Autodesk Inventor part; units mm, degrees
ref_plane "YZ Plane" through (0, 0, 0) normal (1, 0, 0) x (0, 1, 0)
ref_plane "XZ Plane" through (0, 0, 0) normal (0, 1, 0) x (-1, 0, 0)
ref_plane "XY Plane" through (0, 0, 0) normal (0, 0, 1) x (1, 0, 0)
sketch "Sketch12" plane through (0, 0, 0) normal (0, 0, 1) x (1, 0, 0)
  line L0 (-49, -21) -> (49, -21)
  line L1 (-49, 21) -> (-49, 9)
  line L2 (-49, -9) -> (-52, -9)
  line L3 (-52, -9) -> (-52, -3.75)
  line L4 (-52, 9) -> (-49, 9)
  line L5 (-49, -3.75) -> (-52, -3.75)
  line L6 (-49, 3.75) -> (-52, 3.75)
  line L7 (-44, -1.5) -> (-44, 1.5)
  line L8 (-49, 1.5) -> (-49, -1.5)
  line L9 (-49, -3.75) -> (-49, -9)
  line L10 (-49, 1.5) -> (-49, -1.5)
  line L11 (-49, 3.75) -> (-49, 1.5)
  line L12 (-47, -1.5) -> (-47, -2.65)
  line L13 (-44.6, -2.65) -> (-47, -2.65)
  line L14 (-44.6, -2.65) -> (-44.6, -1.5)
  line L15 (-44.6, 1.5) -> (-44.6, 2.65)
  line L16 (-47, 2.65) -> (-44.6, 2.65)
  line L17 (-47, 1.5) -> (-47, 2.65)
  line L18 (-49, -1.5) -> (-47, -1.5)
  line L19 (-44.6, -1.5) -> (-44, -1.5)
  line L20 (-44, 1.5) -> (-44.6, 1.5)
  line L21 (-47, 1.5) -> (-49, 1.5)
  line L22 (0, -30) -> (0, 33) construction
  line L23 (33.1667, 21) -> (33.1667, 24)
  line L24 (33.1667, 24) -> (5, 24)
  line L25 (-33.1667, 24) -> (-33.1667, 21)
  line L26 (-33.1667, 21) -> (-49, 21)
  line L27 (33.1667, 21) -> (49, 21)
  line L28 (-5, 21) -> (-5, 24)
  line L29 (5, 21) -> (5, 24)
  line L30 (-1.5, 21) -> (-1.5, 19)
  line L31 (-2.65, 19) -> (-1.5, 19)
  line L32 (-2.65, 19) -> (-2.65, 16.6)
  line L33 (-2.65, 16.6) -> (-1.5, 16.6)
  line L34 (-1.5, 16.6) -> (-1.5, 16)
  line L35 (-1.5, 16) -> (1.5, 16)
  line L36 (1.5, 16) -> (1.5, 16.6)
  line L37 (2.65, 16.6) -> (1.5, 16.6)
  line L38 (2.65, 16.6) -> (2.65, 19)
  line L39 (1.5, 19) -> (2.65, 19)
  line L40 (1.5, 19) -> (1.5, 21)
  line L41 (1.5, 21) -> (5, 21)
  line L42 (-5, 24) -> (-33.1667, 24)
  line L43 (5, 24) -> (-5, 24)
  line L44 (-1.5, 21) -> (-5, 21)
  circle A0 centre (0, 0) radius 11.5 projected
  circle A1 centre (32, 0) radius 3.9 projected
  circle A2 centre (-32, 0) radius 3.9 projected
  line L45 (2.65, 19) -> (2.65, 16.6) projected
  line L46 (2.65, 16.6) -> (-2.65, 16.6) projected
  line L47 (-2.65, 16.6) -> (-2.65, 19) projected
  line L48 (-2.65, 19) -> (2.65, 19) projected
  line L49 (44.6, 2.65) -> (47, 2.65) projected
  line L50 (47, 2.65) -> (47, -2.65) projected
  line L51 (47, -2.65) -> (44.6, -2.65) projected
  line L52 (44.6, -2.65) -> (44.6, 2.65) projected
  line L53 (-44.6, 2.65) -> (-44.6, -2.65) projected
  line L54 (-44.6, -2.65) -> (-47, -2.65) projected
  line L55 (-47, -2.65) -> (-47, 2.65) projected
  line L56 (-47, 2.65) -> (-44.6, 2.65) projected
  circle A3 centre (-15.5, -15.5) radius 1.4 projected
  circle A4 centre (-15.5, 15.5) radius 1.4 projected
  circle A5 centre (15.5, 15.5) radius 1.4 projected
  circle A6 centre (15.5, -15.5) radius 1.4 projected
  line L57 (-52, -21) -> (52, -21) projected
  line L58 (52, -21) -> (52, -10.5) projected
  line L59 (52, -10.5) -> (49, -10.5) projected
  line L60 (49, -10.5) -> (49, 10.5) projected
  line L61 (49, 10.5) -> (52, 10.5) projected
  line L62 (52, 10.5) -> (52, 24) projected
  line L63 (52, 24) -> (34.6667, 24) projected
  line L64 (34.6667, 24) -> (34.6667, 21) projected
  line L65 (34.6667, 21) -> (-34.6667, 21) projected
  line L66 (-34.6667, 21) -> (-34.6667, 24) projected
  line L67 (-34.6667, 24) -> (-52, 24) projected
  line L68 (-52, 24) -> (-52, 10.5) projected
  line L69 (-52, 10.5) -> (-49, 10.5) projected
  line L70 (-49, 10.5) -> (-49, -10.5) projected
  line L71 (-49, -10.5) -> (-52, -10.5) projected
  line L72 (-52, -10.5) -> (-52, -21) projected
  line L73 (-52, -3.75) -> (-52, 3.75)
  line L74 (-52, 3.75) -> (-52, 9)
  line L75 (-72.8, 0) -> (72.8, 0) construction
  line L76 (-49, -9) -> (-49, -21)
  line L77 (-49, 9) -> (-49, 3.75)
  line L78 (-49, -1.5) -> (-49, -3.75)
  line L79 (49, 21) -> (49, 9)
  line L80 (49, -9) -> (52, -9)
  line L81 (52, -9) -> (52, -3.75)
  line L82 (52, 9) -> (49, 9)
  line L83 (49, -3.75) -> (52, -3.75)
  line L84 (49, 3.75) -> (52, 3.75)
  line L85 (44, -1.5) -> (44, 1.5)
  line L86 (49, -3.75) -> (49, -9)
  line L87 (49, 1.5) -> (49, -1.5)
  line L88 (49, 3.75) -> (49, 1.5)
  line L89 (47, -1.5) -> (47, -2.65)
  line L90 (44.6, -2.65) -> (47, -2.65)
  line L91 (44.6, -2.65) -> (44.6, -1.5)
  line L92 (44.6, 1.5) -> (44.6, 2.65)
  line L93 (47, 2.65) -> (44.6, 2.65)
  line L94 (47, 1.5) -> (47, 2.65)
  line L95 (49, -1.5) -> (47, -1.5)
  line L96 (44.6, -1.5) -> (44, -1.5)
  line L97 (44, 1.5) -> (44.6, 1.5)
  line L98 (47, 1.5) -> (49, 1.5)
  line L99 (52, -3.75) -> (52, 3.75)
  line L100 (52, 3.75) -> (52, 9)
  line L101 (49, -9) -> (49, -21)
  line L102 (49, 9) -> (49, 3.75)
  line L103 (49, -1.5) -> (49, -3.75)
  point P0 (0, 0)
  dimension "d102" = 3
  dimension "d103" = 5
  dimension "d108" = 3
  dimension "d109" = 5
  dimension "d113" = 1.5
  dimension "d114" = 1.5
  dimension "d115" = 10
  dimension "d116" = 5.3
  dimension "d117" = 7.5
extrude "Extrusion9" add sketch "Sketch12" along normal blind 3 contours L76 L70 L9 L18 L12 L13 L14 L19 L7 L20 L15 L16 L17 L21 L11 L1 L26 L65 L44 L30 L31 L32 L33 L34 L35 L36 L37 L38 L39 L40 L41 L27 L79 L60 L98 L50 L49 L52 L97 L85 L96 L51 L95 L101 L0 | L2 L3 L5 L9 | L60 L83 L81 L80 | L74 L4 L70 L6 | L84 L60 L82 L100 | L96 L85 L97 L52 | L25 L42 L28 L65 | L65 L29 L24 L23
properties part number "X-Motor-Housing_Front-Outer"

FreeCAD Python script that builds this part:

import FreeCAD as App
import Part
import Sketcher
from FreeCAD import Vector
Q = App.Units.Quantity

doc = App.newDocument("Part")
body = doc.addObject("PartDesign::Body", "Body")

sketch1 = body.newObject("Sketcher::SketchObject", "Sketch")
sketch1.AttachmentSupport = (doc.getObject("XY_Plane"), [""])
sketch1.MapMode = "FlatFace"
sketch1.addGeometry(Part.LineSegment(Vector(-49, -21, 0), Vector(49, -21, 0)), False)
sketch1.addGeometry(Part.LineSegment(Vector(49, -21, 0), Vector(49, -9, 0)), False)
sketch1.addGeometry(Part.LineSegment(Vector(49, -9, 0), Vector(52, -9, 0)), False)
sketch1.addGeometry(Part.LineSegment(Vector(52, -9, 0), Vector(52, -3.75, 0)), False)
sketch1.addGeometry(Part.LineSegment(Vector(52, -3.75, 0), Vector(49, -3.75, 0)), False)
sketch1.addGeometry(Part.LineSegment(Vector(49, -3.75, 0), Vector(49, -1.5, 0)), False)
sketch1.addGeometry(Part.LineSegment(Vector(49, -1.5, 0), Vector(47, -1.5, 0)), False)
sketch1.addGeometry(Part.LineSegment(Vector(47, -1.5, 0), Vector(47, -2.65, 0)), False)
sketch1.addGeometry(Part.LineSegment(Vector(47, -2.65, 0), Vector(44.6, -2.65, 0)), False)
sketch1.addGeometry(Part.LineSegment(Vector(44.6, -2.65, 0), Vector(44.6, 2.65, 0)), False)
sketch1.addGeometry(Part.LineSegment(Vector(44.6, 2.65, 0), Vector(47, 2.65, 0)), False)
sketch1.addGeometry(Part.LineSegment(Vector(47, 2.65, 0), Vector(47, 1.5, 0)), False)
sketch1.addGeometry(Part.LineSegment(Vector(47, 1.5, 0), Vector(49, 1.5, 0)), False)
sketch1.addGeometry(Part.LineSegment(Vector(49, 1.5, 0), Vector(49, 3.75, 0)), False)
sketch1.addGeometry(Part.LineSegment(Vector(49, 3.75, 0), Vector(52, 3.75, 0)), False)
sketch1.addGeometry(Part.LineSegment(Vector(52, 3.75, 0), Vector(52, 9, 0)), False)
sketch1.addGeometry(Part.LineSegment(Vector(52, 9, 0), Vector(49, 9, 0)), False)
sketch1.addGeometry(Part.LineSegment(Vector(49, 9, 0), Vector(49, 21, 0)), False)
sketch1.addGeometry(Part.LineSegment(Vector(49, 21, 0), Vector(33.1667, 21, 0)), False)
sketch1.addGeometry(Part.LineSegment(Vector(33.1667, 21, 0), Vector(33.1667, 24, 0)), False)
sketch1.addGeometry(Part.LineSegment(Vector(33.1667, 24, 0), Vector(5, 24, 0)), False)
sketch1.addGeometry(Part.LineSegment(Vector(5, 24, 0), Vector(5, 21, 0)), False)
sketch1.addGeometry(Part.LineSegment(Vector(5, 21, 0), Vector(1.5, 21, 0)), False)
sketch1.addGeometry(Part.LineSegment(Vector(1.5, 21, 0), Vector(1.5, 19, 0)), False)
sketch1.addGeometry(Part.LineSegment(Vector(1.5, 19, 0), Vector(2.65, 19, 0)), False)
sketch1.addGeometry(Part.LineSegment(Vector(2.65, 19, 0), Vector(2.65, 16.6, 0)), False)
sketch1.addGeometry(Part.LineSegment(Vector(2.65, 16.6, 0), Vector(1.5, 16.6, 0)), False)
sketch1.addGeometry(Part.LineSegment(Vector(1.5, 16.6, 0), Vector(1.5, 16, 0)), False)
sketch1.addGeometry(Part.LineSegment(Vector(1.5, 16, 0), Vector(-1.5, 16, 0)), False)
sketch1.addGeometry(Part.LineSegment(Vector(-1.5, 16, 0), Vector(-1.5, 16.6, 0)), False)
sketch1.addGeometry(Part.LineSegment(Vector(-1.5, 16.6, 0), Vector(-2.65, 16.6, 0)), False)
sketch1.addGeometry(Part.LineSegment(Vector(-2.65, 16.6, 0), Vector(-2.65, 19, 0)), False)
sketch1.addGeometry(Part.LineSegment(Vector(-2.65, 19, 0), Vector(-1.5, 19, 0)), False)
sketch1.addGeometry(Part.LineSegment(Vector(-1.5, 19, 0), Vector(-1.5, 21, 0)), False)
sketch1.addGeometry(Part.LineSegment(Vector(-1.5, 21, 0), Vector(-5, 21, 0)), False)
sketch1.addGeometry(Part.LineSegment(Vector(-5, 21, 0), Vector(-5, 24, 0)), False)
sketch1.addGeometry(Part.LineSegment(Vector(-5, 24, 0), Vector(-33.1667, 24, 0)), False)
sketch1.addGeometry(Part.LineSegment(Vector(-33.1667, 24, 0), Vector(-33.1667, 21, 0)), False)
sketch1.addGeometry(Part.LineSegment(Vector(-33.1667, 21, 0), Vector(-49, 21, 0)), False)
sketch1.addGeometry(Part.LineSegment(Vector(-49, 21, 0), Vector(-49, 9, 0)), False)
sketch1.addGeometry(Part.LineSegment(Vector(-49, 9, 0), Vector(-52, 9, 0)), False)
sketch1.addGeometry(Part.LineSegment(Vector(-52, 9, 0), Vector(-52, 3.75, 0)), False)
sketch1.addGeometry(Part.LineSegment(Vector(-52, 3.75, 0), Vector(-49, 3.75, 0)), False)
sketch1.addGeometry(Part.LineSegment(Vector(-49, 3.75, 0), Vector(-49, 1.5, 0)), False)
sketch1.addGeometry(Part.LineSegment(Vector(-49, 1.5, 0), Vector(-47, 1.5, 0)), False)
sketch1.addGeometry(Part.LineSegment(Vector(-47, 1.5, 0), Vector(-47, 2.65, 0)), False)
sketch1.addGeometry(Part.LineSegment(Vector(-47, 2.65, 0), Vector(-44.6, 2.65, 0)), False)
sketch1.addGeometry(Part.LineSegment(Vector(-44.6, 2.65, 0), Vector(-44.6, 1.5, 0)), False)
sketch1.addGeometry(Part.LineSegment(Vector(-44.6, 1.5, 0), Vector(-44, 1.5, 0)), False)
sketch1.addGeometry(Part.LineSegment(Vector(-44, 1.5, 0), Vector(-44, -1.5, 0)), False)
sketch1.addGeometry(Part.LineSegment(Vector(-44, -1.5, 0), Vector(-44.6, -1.5, 0)), False)
sketch1.addGeometry(Part.LineSegment(Vector(-44.6, -1.5, 0), Vector(-44.6, -2.65, 0)), False)
sketch1.addGeometry(Part.LineSegment(Vector(-44.6, -2.65, 0), Vector(-47, -2.65, 0)), False)
sketch1.addGeometry(Part.LineSegment(Vector(-47, -2.65, 0), Vector(-47, -1.5, 0)), False)
sketch1.addGeometry(Part.LineSegment(Vector(-47, -1.5, 0), Vector(-49, -1.5, 0)), False)
sketch1.addGeometry(Part.LineSegment(Vector(-49, -1.5, 0), Vector(-49, -3.75, 0)), False)
sketch1.addGeometry(Part.LineSegment(Vector(-49, -3.75, 0), Vector(-52, -3.75, 0)), False)
sketch1.addGeometry(Part.LineSegment(Vector(-52, -3.75, 0), Vector(-52, -9, 0)), False)
sketch1.addGeometry(Part.LineSegment(Vector(-52, -9, 0), Vector(-49, -9, 0)), False)
sketch1.addGeometry(Part.LineSegment(Vector(-49, -9, 0), Vector(-49, -21, 0)), False)
sketch1.addGeometry(Part.Circle(Vector(-15.5, -15.5, 0), Vector(0, 0, 1), 1.4), False)
sketch1.addGeometry(Part.Circle(Vector(-32, 0, 0), Vector(0, 0, 1), 3.9), False)
sketch1.addGeometry(Part.Circle(Vector(15.5, -15.5, 0), Vector(0, 0, 1), 1.4), False)
sketch1.addGeometry(Part.Circle(Vector(0, 0, 0), Vector(0, 0, 1), 11.5), False)
sketch1.addGeometry(Part.Circle(Vector(32, 0, 0), Vector(0, 0, 1), 3.9), False)
sketch1.addGeometry(Part.Circle(Vector(-15.5, 15.5, 0), Vector(0, 0, 1), 1.4), False)
sketch1.addGeometry(Part.Circle(Vector(15.5, 15.5, 0), Vector(0, 0, 1), 1.4), False)
sketch1.addConstraint(Sketcher.Constraint("Coincident", 0, 2, 1, 1))
sketch1.addConstraint(Sketcher.Constraint("Coincident", 1, 2, 2, 1))
sketch1.addConstraint(Sketcher.Constraint("Coincident", 2, 2, 3, 1))
sketch1.addConstraint(Sketcher.Constraint("Coincident", 3, 2, 4, 1))
sketch1.addConstraint(Sketcher.Constraint("Coincident", 4, 2, 5, 1))
sketch1.addConstraint(Sketcher.Constraint("Coincident", 5, 2, 6, 1))
sketch1.addConstraint(Sketcher.Constraint("Coincident", 6, 2, 7, 1))
sketch1.addConstraint(Sketcher.Constraint("Coincident", 7, 2, 8, 1))
sketch1.addConstraint(Sketcher.Constraint("Coincident", 8, 2, 9, 1))
sketch1.addConstraint(Sketcher.Constraint("Coincident", 9, 2, 10, 1))
sketch1.addConstraint(Sketcher.Constraint("Coincident", 10, 2, 11, 1))
sketch1.addConstraint(Sketcher.Constraint("Coincident", 11, 2, 12, 1))
sketch1.addConstraint(Sketcher.Constraint("Coincident", 12, 2, 13, 1))
sketch1.addConstraint(Sketcher.Constraint("Coincident", 13, 2, 14, 1))
sketch1.addConstraint(Sketcher.Constraint("Coincident", 14, 2, 15, 1))
sketch1.addConstraint(Sketcher.Constraint("Coincident", 15, 2, 16, 1))
sketch1.addConstraint(Sketcher.Constraint("Coincident", 16, 2, 17, 1))
sketch1.addConstraint(Sketcher.Constraint("Coincident", 17, 2, 18, 1))
sketch1.addConstraint(Sketcher.Constraint("Coincident", 18, 2, 19, 1))
sketch1.addConstraint(Sketcher.Constraint("Coincident", 19, 2, 20, 1))
sketch1.addConstraint(Sketcher.Constraint("Coincident", 20, 2, 21, 1))
sketch1.addConstraint(Sketcher.Constraint("Coincident", 21, 2, 22, 1))
sketch1.addConstraint(Sketcher.Constraint("Coincident", 22, 2, 23, 1))
sketch1.addConstraint(Sketcher.Constraint("Coincident", 23, 2, 24, 1))
sketch1.addConstraint(Sketcher.Constraint("Coincident", 24, 2, 25, 1))
sketch1.addConstraint(Sketcher.Constraint("Coincident", 25, 2, 26, 1))
sketch1.addConstraint(Sketcher.Constraint("Coincident", 26, 2, 27, 1))
sketch1.addConstraint(Sketcher.Constraint("Coincident", 27, 2, 28, 1))
sketch1.addConstraint(Sketcher.Constraint("Coincident", 28, 2, 29, 1))
sketch1.addConstraint(Sketcher.Constraint("Coincident", 29, 2, 30, 1))
sketch1.addConstraint(Sketcher.Constraint("Coincident", 30, 2, 31, 1))
sketch1.addConstraint(Sketcher.Constraint("Coincident", 31, 2, 32, 1))
sketch1.addConstraint(Sketcher.Constraint("Coincident", 32, 2, 33, 1))
sketch1.addConstraint(Sketcher.Constraint("Coincident", 33, 2, 34, 1))
sketch1.addConstraint(Sketcher.Constraint("Coincident", 34, 2, 35, 1))
sketch1.addConstraint(Sketcher.Constraint("Coincident", 35, 2, 36, 1))
sketch1.addConstraint(Sketcher.Constraint("Coincident", 36, 2, 37, 1))
sketch1.addConstraint(Sketcher.Constraint("Coincident", 37, 2, 38, 1))
sketch1.addConstraint(Sketcher.Constraint("Coincident", 38, 2, 39, 1))
sketch1.addConstraint(Sketcher.Constraint("Coincident", 39, 2, 40, 1))
sketch1.addConstraint(Sketcher.Constraint("Coincident", 40, 2, 41, 1))
sketch1.addConstraint(Sketcher.Constraint("Coincident", 41, 2, 42, 1))
sketch1.addConstraint(Sketcher.Constraint("Coincident", 42, 2, 43, 1))
sketch1.addConstraint(Sketcher.Constraint("Coincident", 43, 2, 44, 1))
sketch1.addConstraint(Sketcher.Constraint("Coincident", 44, 2, 45, 1))
sketch1.addConstraint(Sketcher.Constraint("Coincident", 45, 2, 46, 1))
sketch1.addConstraint(Sketcher.Constraint("Coincident", 46, 2, 47, 1))
sketch1.addConstraint(Sketcher.Constraint("Coincident", 47, 2, 48, 1))
sketch1.addConstraint(Sketcher.Constraint("Coincident", 48, 2, 49, 1))
sketch1.addConstraint(Sketcher.Constraint("Coincident", 49, 2, 50, 1))
sketch1.addConstraint(Sketcher.Constraint("Coincident", 50, 2, 51, 1))
sketch1.addConstraint(Sketcher.Constraint("Coincident", 51, 2, 52, 1))
sketch1.addConstraint(Sketcher.Constraint("Coincident", 52, 2, 53, 1))
sketch1.addConstraint(Sketcher.Constraint("Coincident", 53, 2, 54, 1))
sketch1.addConstraint(Sketcher.Constraint("Coincident", 54, 2, 55, 1))
sketch1.addConstraint(Sketcher.Constraint("Coincident", 55, 2, 56, 1))
sketch1.addConstraint(Sketcher.Constraint("Coincident", 56, 2, 57, 1))
sketch1.addConstraint(Sketcher.Constraint("Coincident", 57, 2, 58, 1))
sketch1.addConstraint(Sketcher.Constraint("Coincident", 58, 2, 59, 1))
sketch1.addConstraint(Sketcher.Constraint("Coincident", 59, 2, 0, 1))
sketch1.addConstraint(Sketcher.Constraint("Horizontal", 0))
sketch1.addConstraint(Sketcher.Constraint("Vertical", 1))
sketch1.addConstraint(Sketcher.Constraint("Horizontal", 2))
sketch1.addConstraint(Sketcher.Constraint("Vertical", 3))
sketch1.addConstraint(Sketcher.Constraint("Horizontal", 4))
sketch1.addConstraint(Sketcher.Constraint("Vertical", 5))
sketch1.addConstraint(Sketcher.Constraint("Horizontal", 6))
sketch1.addConstraint(Sketcher.Constraint("Vertical", 7))
sketch1.addConstraint(Sketcher.Constraint("Horizontal", 8))
sketch1.addConstraint(Sketcher.Constraint("Vertical", 9))
sketch1.addConstraint(Sketcher.Constraint("Horizontal", 10))
sketch1.addConstraint(Sketcher.Constraint("Vertical", 11))
sketch1.addConstraint(Sketcher.Constraint("Horizontal", 12))
sketch1.addConstraint(Sketcher.Constraint("Vertical", 13))
sketch1.addConstraint(Sketcher.Constraint("Horizontal", 14))
sketch1.addConstraint(Sketcher.Constraint("Vertical", 15))
sketch1.addConstraint(Sketcher.Constraint("Horizontal", 16))
sketch1.addConstraint(Sketcher.Constraint("Vertical", 17))
sketch1.addConstraint(Sketcher.Constraint("Horizontal", 18))
sketch1.addConstraint(Sketcher.Constraint("Vertical", 19))
sketch1.addConstraint(Sketcher.Constraint("Horizontal", 20))
sketch1.addConstraint(Sketcher.Constraint("Vertical", 21))
sketch1.addConstraint(Sketcher.Constraint("Horizontal", 22))
sketch1.addConstraint(Sketcher.Constraint("Vertical", 23))
sketch1.addConstraint(Sketcher.Constraint("Horizontal", 24))
sketch1.addConstraint(Sketcher.Constraint("Vertical", 25))
sketch1.addConstraint(Sketcher.Constraint("Horizontal", 26))
sketch1.addConstraint(Sketcher.Constraint("Vertical", 27))
sketch1.addConstraint(Sketcher.Constraint("Horizontal", 28))
sketch1.addConstraint(Sketcher.Constraint("Vertical", 29))
sketch1.addConstraint(Sketcher.Constraint("Horizontal", 30))
sketch1.addConstraint(Sketcher.Constraint("Vertical", 31))
sketch1.addConstraint(Sketcher.Constraint("Horizontal", 32))
sketch1.addConstraint(Sketcher.Constraint("Vertical", 33))
sketch1.addConstraint(Sketcher.Constraint("Horizontal", 34))
sketch1.addConstraint(Sketcher.Constraint("Vertical", 35))
sketch1.addConstraint(Sketcher.Constraint("Horizontal", 36))
sketch1.addConstraint(Sketcher.Constraint("Vertical", 37))
sketch1.addConstraint(Sketcher.Constraint("Horizontal", 38))
sketch1.addConstraint(Sketcher.Constraint("Vertical", 39))
sketch1.addConstraint(Sketcher.Constraint("Horizontal", 40))
sketch1.addConstraint(Sketcher.Constraint("Vertical", 41))
sketch1.addConstraint(Sketcher.Constraint("Horizontal", 42))
sketch1.addConstraint(Sketcher.Constraint("Vertical", 43))
sketch1.addConstraint(Sketcher.Constraint("Horizontal", 44))
sketch1.addConstraint(Sketcher.Constraint("Vertical", 45))
sketch1.addConstraint(Sketcher.Constraint("Horizontal", 46))
sketch1.addConstraint(Sketcher.Constraint("Vertical", 47))
sketch1.addConstraint(Sketcher.Constraint("Horizontal", 48))
sketch1.addConstraint(Sketcher.Constraint("Vertical", 49))
sketch1.addConstraint(Sketcher.Constraint("Horizontal", 50))
sketch1.addConstraint(Sketcher.Constraint("Vertical", 51))
sketch1.addConstraint(Sketcher.Constraint("Horizontal", 52))
sketch1.addConstraint(Sketcher.Constraint("Vertical", 53))
sketch1.addConstraint(Sketcher.Constraint("Horizontal", 54))
sketch1.addConstraint(Sketcher.Constraint("Vertical", 55))
sketch1.addConstraint(Sketcher.Constraint("Horizontal", 56))
sketch1.addConstraint(Sketcher.Constraint("Vertical", 57))
sketch1.addConstraint(Sketcher.Constraint("Horizontal", 58))
sketch1.addConstraint(Sketcher.Constraint("Vertical", 59))
sketch1.addConstraint(Sketcher.Constraint("Coincident", 63, 3, -1, 1))
sketch1.addConstraint(Sketcher.Constraint("Equal", 60, 62))
sketch1.addConstraint(Sketcher.Constraint("Equal", 61, 64))
sketch1.addConstraint(Sketcher.Constraint("Equal", 62, 65))
sketch1.addConstraint(Sketcher.Constraint("Equal", 65, 66))
sketch1.addConstraint(Sketcher.Constraint("Symmetric", 61, 3, 64, 3, -1, 1))
sketch1.addConstraint(Sketcher.Constraint("Symmetric", 62, 3, 65, 3, -1, 1))
sketch1.addConstraint(Sketcher.Constraint("Symmetric", 60, 3, 66, 3, -1, 1))
sketch1.addConstraint(Sketcher.Constraint("Symmetric", 0, 2, 38, 2, -1, 1))
sketch1.addConstraint(Sketcher.Constraint("Symmetric", 2, 2, 40, 2, -1, 1))
sketch1.addConstraint(Sketcher.Constraint("Symmetric", 4, 2, 42, 2, -1, 1))
sketch1.addConstraint(Sketcher.Constraint("Symmetric", 6, 2, 44, 2, -1, 1))
sketch1.addConstraint(Sketcher.Constraint("Symmetric", 8, 2, 46, 2, -1, 1))
sketch1.addConstraint(Sketcher.Constraint("Symmetric", 9, 2, 51, 2, -1, 1))
sketch1.addConstraint(Sketcher.Constraint("Symmetric", 11, 2, 53, 2, -1, 1))
sketch1.addConstraint(Sketcher.Constraint("Symmetric", 13, 2, 55, 2, -1, 1))
sketch1.addConstraint(Sketcher.Constraint("Symmetric", 15, 2, 57, 2, -1, 1))
sketch1.addConstraint(Sketcher.Constraint("Symmetric", 17, 2, 59, 2, -1, 1))
sketch1.addConstraint(Sketcher.Constraint("Symmetric", 60, 3, 62, 3, -2))
sketch1.addConstraint(Sketcher.Constraint("Symmetric", 26, 2, 29, 2, -2))
sketch1.addConstraint(Sketcher.Constraint("Symmetric", 24, 2, 31, 2, -2))
sketch1.addConstraint(Sketcher.Constraint("Symmetric", 22, 2, 33, 2, -2))
sketch1.addConstraint(Sketcher.Constraint("Symmetric", 20, 2, 35, 2, -2))
sketch1.addConstraint(Sketcher.Constraint("Symmetric", 16, 2, 39, 2, -2))
sketch1.addConstraint(Sketcher.Constraint("Symmetric", 14, 2, 41, 2, -2))
sketch1.addConstraint(Sketcher.Constraint("Symmetric", 12, 2, 43, 2, -2))
sketch1.addConstraint(Sketcher.Constraint("Symmetric", 10, 2, 45, 2, -2))
sketch1.addConstraint(Sketcher.Constraint("PointOnObject", 61, 3, -1))
sketch1.addConstraint(Sketcher.Constraint("Horizontal", 18, 2, 21, 2))
sketch1.addConstraint(Sketcher.Constraint("Horizontal", 44, 2, 47, 2))
sketch1.addConstraint(Sketcher.Constraint("Horizontal", 6, 2, 49, 2))
sketch1.addConstraint(Sketcher.Constraint("Vertical", 1, 2, 4, 2))
sketch1.addConstraint(Sketcher.Constraint("Vertical", 23, 2, 26, 2))
sketch1.addConstraint(Sketcher.Constraint("Equal", 16, 28))
sketch1.addConstraint(Sketcher.Constraint("Equal", 20, 36))
sketch1.addConstraint(Sketcher.Constraint("Equal", 32, 7))
sketch1.addConstraint(Sketcher.Constraint("Equal", 58, 19))
sketch1.addConstraint(Sketcher.Constraint("Equal", 54, 23))
sketch1.addConstraint(Sketcher.Constraint("Equal", 52, 25))
sketch1.addConstraint(Sketcher.Constraint("Equal", 50, 27))
sketch1.addConstraint(Sketcher.Constraint("Equal", 37, 49))
sketch1.addConstraint(Sketcher.Constraint("DistanceX", 2, 1, 2, 2, Q("3 mm")))
sketch1.addConstraint(Sketcher.Constraint("Diameter", 63, Q("23 mm")))
sketch1.addConstraint(Sketcher.Constraint("DistanceY", 9, 1, 9, 2, Q("5.3 mm")))
sketch1.addConstraint(Sketcher.Constraint("DistanceX", -1, 1, 20, 2, Q("5 mm")))
sketch1.addConstraint(Sketcher.Constraint("Diameter", 60, Q("2.8 mm")))
sketch1.addConstraint(Sketcher.Constraint("Diameter", 61, Q("7.8 mm")))
sketch1.addConstraint(Sketcher.Constraint("DistanceX", 0, 1, 0, 2, Q("98 mm")))
sketch1.addConstraint(Sketcher.Constraint("DistanceX", 6, 2, 6, 1, Q("2 mm")))
sketch1.addConstraint(Sketcher.Constraint("DistanceY", 1, 1, 1, 2, Q("12 mm")))
sketch1.addConstraint(Sketcher.Constraint("DistanceX", 8, 2, 8, 1, Q("2.4 mm")))
sketch1.addConstraint(Sketcher.Constraint("DistanceX", 48, 1, 48, 2, Q("0.6 mm")))
sketch1.addConstraint(Sketcher.Constraint("DistanceX", 61, 3, -1, 1, Q("32 mm")))
sketch1.addConstraint(Sketcher.Constraint("DistanceY", 0, 2, -1, 1, Q("21 mm")))
sketch1.addConstraint(Sketcher.Constraint("DistanceY", 3, 1, 3, 2, Q("5.25 mm")))
sketch1.addConstraint(Sketcher.Constraint("DistanceX", 60, 3, -1, 1, Q("15.5 mm")))
sketch1.addConstraint(Sketcher.Constraint("DistanceY", 60, 3, -1, 1, Q("15.5 mm")))
sketch1.addConstraint(Sketcher.Constraint("DistanceX", 18, 2, 18, 1, Q("15.8333 mm")))
pad1 = body.newObject("PartDesign::Pad", "Pad")
pad1.Profile = sketch1
pad1.Length = 3

doc.recompute()
